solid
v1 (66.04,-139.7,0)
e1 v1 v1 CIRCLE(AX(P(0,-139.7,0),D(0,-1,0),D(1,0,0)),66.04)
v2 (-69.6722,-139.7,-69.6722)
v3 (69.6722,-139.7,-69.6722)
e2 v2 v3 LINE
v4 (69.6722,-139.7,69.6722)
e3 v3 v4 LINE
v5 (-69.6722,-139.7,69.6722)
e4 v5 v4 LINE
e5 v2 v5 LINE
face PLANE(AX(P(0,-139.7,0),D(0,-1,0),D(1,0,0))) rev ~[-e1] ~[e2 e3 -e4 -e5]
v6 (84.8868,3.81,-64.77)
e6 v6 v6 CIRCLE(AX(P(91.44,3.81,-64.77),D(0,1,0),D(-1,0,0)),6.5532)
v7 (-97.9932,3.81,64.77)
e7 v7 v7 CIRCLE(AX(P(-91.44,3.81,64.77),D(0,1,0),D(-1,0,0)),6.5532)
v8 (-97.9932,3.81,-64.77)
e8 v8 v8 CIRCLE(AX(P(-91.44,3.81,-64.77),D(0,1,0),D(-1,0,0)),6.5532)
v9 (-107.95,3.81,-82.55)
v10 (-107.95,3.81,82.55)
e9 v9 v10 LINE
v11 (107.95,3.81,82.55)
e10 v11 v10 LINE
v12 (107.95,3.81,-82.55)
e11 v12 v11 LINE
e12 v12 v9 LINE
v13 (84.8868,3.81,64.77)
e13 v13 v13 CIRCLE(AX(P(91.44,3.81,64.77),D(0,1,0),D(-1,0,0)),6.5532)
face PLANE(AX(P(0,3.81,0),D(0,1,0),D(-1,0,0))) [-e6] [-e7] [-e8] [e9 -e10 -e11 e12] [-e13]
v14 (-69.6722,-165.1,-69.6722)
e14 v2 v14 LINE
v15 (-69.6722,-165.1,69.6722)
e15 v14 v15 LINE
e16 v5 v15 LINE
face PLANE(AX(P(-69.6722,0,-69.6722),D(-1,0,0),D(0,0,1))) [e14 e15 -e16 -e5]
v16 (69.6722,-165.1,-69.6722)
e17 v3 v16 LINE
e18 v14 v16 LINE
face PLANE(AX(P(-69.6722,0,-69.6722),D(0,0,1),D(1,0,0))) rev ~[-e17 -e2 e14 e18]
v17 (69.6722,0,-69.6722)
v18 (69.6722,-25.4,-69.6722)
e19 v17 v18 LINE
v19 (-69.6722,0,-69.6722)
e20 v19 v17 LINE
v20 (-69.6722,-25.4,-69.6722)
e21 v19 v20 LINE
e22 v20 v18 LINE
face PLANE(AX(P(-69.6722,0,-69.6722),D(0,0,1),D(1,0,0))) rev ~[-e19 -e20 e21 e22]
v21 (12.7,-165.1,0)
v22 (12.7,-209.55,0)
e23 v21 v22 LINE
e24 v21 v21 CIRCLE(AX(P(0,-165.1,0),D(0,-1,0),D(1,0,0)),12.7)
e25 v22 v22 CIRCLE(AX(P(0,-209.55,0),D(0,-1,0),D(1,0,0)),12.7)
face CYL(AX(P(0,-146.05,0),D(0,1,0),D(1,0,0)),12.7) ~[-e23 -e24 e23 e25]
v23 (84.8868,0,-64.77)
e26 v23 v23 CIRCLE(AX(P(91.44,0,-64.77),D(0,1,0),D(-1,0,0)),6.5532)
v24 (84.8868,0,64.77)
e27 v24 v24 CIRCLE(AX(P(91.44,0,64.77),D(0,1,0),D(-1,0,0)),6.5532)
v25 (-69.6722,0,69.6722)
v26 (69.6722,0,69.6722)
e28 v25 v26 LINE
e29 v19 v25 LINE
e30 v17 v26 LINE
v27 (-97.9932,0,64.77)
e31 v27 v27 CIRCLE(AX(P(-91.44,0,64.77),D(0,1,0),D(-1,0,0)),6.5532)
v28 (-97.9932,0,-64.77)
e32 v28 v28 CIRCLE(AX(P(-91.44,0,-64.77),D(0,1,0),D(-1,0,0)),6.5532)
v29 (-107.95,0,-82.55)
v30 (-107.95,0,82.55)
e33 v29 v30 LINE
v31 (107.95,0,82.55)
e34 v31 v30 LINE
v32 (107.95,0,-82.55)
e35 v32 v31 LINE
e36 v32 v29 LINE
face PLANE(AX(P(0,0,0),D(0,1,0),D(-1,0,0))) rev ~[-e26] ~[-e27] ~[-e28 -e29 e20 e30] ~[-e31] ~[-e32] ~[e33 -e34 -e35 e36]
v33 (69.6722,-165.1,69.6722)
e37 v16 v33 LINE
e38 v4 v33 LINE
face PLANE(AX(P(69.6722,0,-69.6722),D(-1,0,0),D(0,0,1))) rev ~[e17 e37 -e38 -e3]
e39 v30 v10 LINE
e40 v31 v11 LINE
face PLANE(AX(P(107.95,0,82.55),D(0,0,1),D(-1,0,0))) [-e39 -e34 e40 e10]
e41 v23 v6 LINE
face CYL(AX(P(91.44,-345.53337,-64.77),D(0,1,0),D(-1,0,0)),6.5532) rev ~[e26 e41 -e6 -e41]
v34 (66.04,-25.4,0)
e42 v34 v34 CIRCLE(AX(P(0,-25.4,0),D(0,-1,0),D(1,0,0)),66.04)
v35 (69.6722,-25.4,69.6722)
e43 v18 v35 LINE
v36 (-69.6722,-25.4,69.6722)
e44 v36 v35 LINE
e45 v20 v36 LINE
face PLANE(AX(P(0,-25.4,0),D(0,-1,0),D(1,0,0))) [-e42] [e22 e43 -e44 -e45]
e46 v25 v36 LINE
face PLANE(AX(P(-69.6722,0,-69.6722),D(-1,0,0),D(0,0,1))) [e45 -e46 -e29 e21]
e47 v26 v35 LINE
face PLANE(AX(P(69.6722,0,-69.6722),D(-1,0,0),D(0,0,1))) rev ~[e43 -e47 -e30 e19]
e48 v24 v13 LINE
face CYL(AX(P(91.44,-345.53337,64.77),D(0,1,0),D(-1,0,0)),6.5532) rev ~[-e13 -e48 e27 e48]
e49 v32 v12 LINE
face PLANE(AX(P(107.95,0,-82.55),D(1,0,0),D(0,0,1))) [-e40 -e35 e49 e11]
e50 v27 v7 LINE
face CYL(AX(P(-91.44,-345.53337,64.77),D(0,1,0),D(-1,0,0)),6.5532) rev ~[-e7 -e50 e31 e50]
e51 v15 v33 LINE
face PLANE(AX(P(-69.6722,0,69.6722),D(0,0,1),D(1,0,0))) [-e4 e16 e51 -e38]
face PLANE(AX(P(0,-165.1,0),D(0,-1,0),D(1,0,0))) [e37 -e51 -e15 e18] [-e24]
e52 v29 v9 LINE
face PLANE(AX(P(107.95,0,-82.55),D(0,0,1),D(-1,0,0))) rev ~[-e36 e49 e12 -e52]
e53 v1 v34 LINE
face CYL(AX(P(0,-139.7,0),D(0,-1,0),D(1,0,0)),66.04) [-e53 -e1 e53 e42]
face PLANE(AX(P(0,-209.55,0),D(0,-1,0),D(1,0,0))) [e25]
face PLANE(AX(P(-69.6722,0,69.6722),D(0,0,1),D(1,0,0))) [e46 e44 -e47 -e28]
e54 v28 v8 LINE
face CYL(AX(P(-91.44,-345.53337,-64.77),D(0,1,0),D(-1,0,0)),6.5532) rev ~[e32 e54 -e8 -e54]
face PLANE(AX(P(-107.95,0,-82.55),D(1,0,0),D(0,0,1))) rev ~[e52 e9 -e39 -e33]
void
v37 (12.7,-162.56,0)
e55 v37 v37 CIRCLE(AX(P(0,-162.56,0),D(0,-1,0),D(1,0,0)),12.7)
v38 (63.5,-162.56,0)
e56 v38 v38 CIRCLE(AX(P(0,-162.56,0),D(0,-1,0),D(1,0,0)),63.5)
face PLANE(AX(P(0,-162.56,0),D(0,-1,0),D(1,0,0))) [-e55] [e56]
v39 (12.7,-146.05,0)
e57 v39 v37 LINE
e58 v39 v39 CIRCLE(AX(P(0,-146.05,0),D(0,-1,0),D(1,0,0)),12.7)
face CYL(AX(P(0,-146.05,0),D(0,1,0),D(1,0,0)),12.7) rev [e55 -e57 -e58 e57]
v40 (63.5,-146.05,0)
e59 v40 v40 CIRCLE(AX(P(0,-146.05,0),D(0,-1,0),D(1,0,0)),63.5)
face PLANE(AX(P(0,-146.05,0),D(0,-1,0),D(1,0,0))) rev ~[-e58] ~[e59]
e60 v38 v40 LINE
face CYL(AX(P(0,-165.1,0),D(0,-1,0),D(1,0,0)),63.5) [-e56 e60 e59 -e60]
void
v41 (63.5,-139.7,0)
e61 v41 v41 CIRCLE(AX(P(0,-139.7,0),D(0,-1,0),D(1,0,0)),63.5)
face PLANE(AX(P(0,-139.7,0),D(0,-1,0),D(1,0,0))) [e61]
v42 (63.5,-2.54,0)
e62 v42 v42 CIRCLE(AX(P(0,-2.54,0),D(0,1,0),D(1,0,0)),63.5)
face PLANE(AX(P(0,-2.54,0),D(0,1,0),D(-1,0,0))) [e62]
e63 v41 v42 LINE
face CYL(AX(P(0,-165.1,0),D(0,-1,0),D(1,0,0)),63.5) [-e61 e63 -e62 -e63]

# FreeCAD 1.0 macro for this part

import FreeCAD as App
import Part
import Sketcher
from FreeCAD import Vector
Q = App.Units.Quantity


def add_polygon(sketch, points):
    """Adds a closed chain of lines whose ends are joined by coincident constraints."""
    first, n = sketch.GeometryCount, len(points)
    for a, b in zip(points, points[1:] + points[:1]):
        sketch.addGeometry(Part.LineSegment(App.Vector(*a, 0), App.Vector(*b, 0)), False)
    for i in range(n):
        sketch.addConstraint(Sketcher.Constraint("Coincident", first + i, 2, first + (i + 1) % n, 1))

doc = App.newDocument("Part")
body = doc.addObject("PartDesign::Body", "Body")

sketch1 = body.newObject("Sketcher::SketchObject", "Sketch")
sketch1.AttachmentSupport = (doc.getObject("XZ_Plane"), [""])
sketch1.MapMode = "FlatFace"
add_polygon(sketch1, [(-70, 70), (-70, -70), (70, -70), (70, 70)])
sketch1.addConstraint([
    Sketcher.Constraint("Vertical", 0),
    Sketcher.Constraint("Horizontal", 1),
    Sketcher.Constraint("Vertical", 2),
    Sketcher.Constraint("Horizontal", 3),
    Sketcher.Constraint("Symmetric", 0, 2, 2, 2, -1, 1),
    Sketcher.Constraint("Equal", 3, 0),
    Sketcher.Constraint("DistanceX", 1, 1, 1, 2, Q("5.486 in")),
])
pad1 = body.newObject("PartDesign::Pad", "Pad")
pad1.Profile = sketch1
pad1.Length = Q("6.5 in")

sketch2 = body.newObject("Sketcher::SketchObject", "Sketch001")
sketch2.AttachmentSupport = (doc.getObject("XZ_Plane"), [""])
sketch2.MapMode = "FlatFace"
sketch2.AttachmentOffset = App.Placement(Vector(0, 0, 5.5 * 25.4), App.Rotation())
add_polygon(sketch2, [(-70, 70), (-70, -70), (70, -70), (70, 70)])
sketch2.addGeometry(Part.Circle(Vector(0, 0, 0), Vector(0, 0, 1), 66), False)
sketch2.addConstraint([
    Sketcher.Constraint("Vertical", 0),
    Sketcher.Constraint("Horizontal", 1),
    Sketcher.Constraint("Vertical", 2),
    Sketcher.Constraint("Horizontal", 3),
    Sketcher.Constraint("Coincident", 4, 3, -1, 1),
    Sketcher.Constraint("Symmetric", 0, 2, 2, 2, -1, 1),
    Sketcher.Constraint("Equal", 3, 0),
    Sketcher.Constraint("Diameter", 4, Q("5.2 in")),
    Sketcher.Constraint("DistanceX", 1, 1, 1, 2, Q("5.486 in")),
])
pocket1 = body.newObject("PartDesign::Pocket", "Pocket")
pocket1.Profile = sketch2
pocket1.Length = Q("4.5 in")

sketch3 = body.newObject("Sketcher::SketchObject", "Sketch002")
sketch3.AttachmentSupport = (doc.getObject("XZ_Plane"), [""])
sketch3.MapMode = "FlatFace"
sketch3.AttachmentOffset = App.Placement(Vector(0, 0, 6.5 * 25.4), App.Rotation())
sketch3.addGeometry(Part.Circle(Vector(0, 0, 0), Vector(0, 0, 1), 64), False)
sketch3.addConstraint([
    Sketcher.Constraint("Coincident", 0, 3, -1, 1),
    Sketcher.Constraint("Diameter", 0, Q("5 in")),
])
pocket2 = body.newObject("PartDesign::Pocket", "Pocket001")
pocket2.Profile = sketch3
pocket2.Type = "ThroughAll"

sketch4 = body.newObject("Sketcher::SketchObject", "Sketch003")
sketch4.AttachmentSupport = (doc.getObject("XZ_Plane"), [""])
sketch4.MapMode = "FlatFace"
sketch4.addGeometry(Part.Circle(Vector(0, 0, 0), Vector(0, 0, 1), 64), False)
sketch4.addConstraint([
    Sketcher.Constraint("Coincident", 0, 3, -1, 1),
    Sketcher.Constraint("Diameter", 0, Q("5 in")),
])
pad2 = body.newObject("PartDesign::Pad", "Pad001")
pad2.Profile = sketch4
pad2.Length = Q("0.1 in")

sketch5 = body.newObject("Sketcher::SketchObject", "Sketch004")
sketch5.AttachmentSupport = (doc.getObject("XZ_Plane"), [""])
sketch5.MapMode = "FlatFace"
sketch5.AttachmentOffset = App.Placement(Vector(0, 0, 5.5 * 25.4), App.Rotation())
sketch5.addGeometry(Part.Circle(Vector(0, 0, 0), Vector(0, 0, 1), 64), False)
sketch5.addConstraint([
    Sketcher.Constraint("Coincident", 0, 3, -1, 1),
    Sketcher.Constraint("Diameter", 0, Q("5 in")),
])
pad3 = body.newObject("PartDesign::Pad", "Pad002")
pad3.Profile = sketch5
pad3.Length = Q("0.25 in")

sketch6 = body.newObject("Sketcher::SketchObject", "Sketch005")
sketch6.AttachmentSupport = (doc.getObject("XZ_Plane"), [""])
sketch6.MapMode = "FlatFace"
sketch6.AttachmentOffset = App.Placement(Vector(0, 0, 5.75 * 25.4), App.Rotation())
sketch6.addGeometry(Part.Circle(Vector(0, 0, 0), Vector(0, 0, 1), 13), False)
sketch6.addConstraint([
    Sketcher.Constraint("Coincident", 0, 3, -1, 1),
    Sketcher.Constraint("Diameter", 0, Q("1 in")),
])
pad4 = body.newObject("PartDesign::Pad", "Pad003")
pad4.Profile = sketch6
pad4.Length = Q("2.5 in")

sketch7 = body.newObject("Sketcher::SketchObject", "Sketch006")
sketch7.AttachmentSupport = (doc.getObject("XZ_Plane"), [""])
sketch7.MapMode = "FlatFace"
add_polygon(sketch7, [(108, 83), (108, -83), (-108, -83), (-108, 83)])
sketch7.addConstraint([
    Sketcher.Constraint("Vertical", 0),
    Sketcher.Constraint("Horizontal", 1),
    Sketcher.Constraint("Vertical", 2),
    Sketcher.Constraint("Horizontal", 3),
    Sketcher.Constraint("Symmetric", 0, 2, 2, 2, -1, 1),
    Sketcher.Constraint("DistanceX", 1, 2, 1, 1, Q("8.5 in")),
    Sketcher.Constraint("DistanceY", 0, 2, 0, 1, Q("6.5 in")),
])
pad5 = body.newObject("PartDesign::Pad", "Pad004")
pad5.Profile = sketch7
pad5.Length = Q("0.15 in")
pad5.Reversed = True

sketch8 = body.newObject("Sketcher::SketchObject", "Sketch007")
sketch8.AttachmentSupport = (doc.getObject("XZ_Plane"), [""])
sketch8.MapMode = "FlatFace"
sketch8.addGeometry([
    Part.Circle(Vector(91, 65, 0), Vector(0, 0, 1), 7),
    Part.Circle(Vector(91, -65, 0), Vector(0, 0, 1), 7),
    Part.Circle(Vector(-91, 65, 0), Vector(0, 0, 1), 7),
    Part.Circle(Vector(-91, -65, 0), Vector(0, 0, 1), 7),
], False)
sketch8.addConstraint([
    Sketcher.Constraint("Equal", 0, 1),
    Sketcher.Constraint("Equal", 1, 2),
    Sketcher.Constraint("Equal", 2, 3),
    Sketcher.Constraint("Symmetric", 1, 3, 2, 3, -1, 1),
    Sketcher.Constraint("Symmetric", 0, 3, 3, 3, -1, 1),
    Sketcher.Constraint("Symmetric", 0, 3, 2, 3, -2),
    Sketcher.Constraint("Diameter", 0, Q("0.516 in")),
    Sketcher.Constraint("DistanceX", -1, 1, 0, 3, Q("3.6 in")),
    Sketcher.Constraint("DistanceY", 1, 3, 0, 3, Q("5.1 in")),
])
doc.recompute()
hole = body.newObject("PartDesign::Hole", "Hole")
hole.Profile = sketch8
hole.ThreadType = "None"
hole.Diameter = Q("0.516 in")
hole.DepthType = "ThroughAll"

sketch9 = body.newObject("Sketcher::SketchObject", "Sketch008")
sketch9.AttachmentSupport = (doc.getObject("XZ_Plane"), [""])
sketch9.MapMode = "FlatFace"
sketch9.AttachmentOffset = App.Placement(Vector(0, 0, 6.5 * 25.4), App.Rotation())
sketch9.addGeometry([
    Part.Circle(Vector(0, 0, 0), Vector(0, 0, 1), 64),
    Part.Circle(Vector(0, 0, 0), Vector(0, 0, 1), 13),
], False)
sketch9.addConstraint([
    Sketcher.Constraint("Coincident", 0, 3, -1, 1),
    Sketcher.Constraint("Coincident", 1, 3, -1, 1),
    Sketcher.Constraint("Diameter", 0, Q("5 in")),
    Sketcher.Constraint("Diameter", 1, Q("1 in")),
])
pad6 = body.newObject("PartDesign::Pad", "Pad005")
pad6.Profile = sketch9
pad6.Length = Q("0.1 in")
pad6.Reversed = True

doc.recompute()
